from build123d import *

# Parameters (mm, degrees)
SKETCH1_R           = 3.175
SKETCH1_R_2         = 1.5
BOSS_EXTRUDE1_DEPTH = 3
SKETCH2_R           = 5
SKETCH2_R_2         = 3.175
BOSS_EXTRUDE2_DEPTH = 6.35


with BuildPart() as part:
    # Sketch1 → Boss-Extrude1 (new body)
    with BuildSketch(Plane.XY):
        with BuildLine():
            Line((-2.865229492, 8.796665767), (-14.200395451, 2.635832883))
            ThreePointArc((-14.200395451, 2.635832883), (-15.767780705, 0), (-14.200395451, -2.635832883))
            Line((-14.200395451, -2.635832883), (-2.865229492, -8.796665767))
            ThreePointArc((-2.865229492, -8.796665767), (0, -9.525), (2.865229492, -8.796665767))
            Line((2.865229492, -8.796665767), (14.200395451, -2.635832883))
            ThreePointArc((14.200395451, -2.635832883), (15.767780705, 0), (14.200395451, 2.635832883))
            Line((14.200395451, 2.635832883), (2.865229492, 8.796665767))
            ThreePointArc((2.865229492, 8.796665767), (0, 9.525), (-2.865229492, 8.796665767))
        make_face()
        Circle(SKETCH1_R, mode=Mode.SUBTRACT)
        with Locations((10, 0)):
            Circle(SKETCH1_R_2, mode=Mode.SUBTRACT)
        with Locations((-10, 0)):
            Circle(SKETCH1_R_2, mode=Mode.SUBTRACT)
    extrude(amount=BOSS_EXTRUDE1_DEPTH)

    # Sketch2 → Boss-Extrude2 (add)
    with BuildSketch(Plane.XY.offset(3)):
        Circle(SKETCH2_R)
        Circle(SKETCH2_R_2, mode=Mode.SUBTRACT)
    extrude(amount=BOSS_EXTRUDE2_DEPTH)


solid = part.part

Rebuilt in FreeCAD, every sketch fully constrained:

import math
import FreeCAD as App
import Part
import Sketcher

V = App.Vector
Q = App.Units.Quantity

doc = App.newDocument("Part")
body = doc.addObject("PartDesign::Body", "Body")

sketch1 = body.newObject("Sketcher::SketchObject", "Sketch")
sketch1.AttachmentSupport = (doc.getObject("XY_Plane"), [""])
sketch1.MapMode = "FlatFace"
sketch1.addGeometry([
    Part.LineSegment(V(-2.9, 8.8, 0), V(-14.2, 2.6, 0)),
    Part.ArcOfCircle(Part.Circle(V(-12.8, 0, 0), V(0, 0, 1), 3), math.radians(119), math.radians(241)),
    Part.LineSegment(V(-14.2, -2.6, 0), V(-2.9, -8.8, 0)),
    Part.ArcOfCircle(Part.Circle(V(0, -3.5, 0), V(0, 0, 1), 6), math.radians(-119), math.radians(-61)),
    Part.LineSegment(V(2.9, -8.8, 0), V(14.2, -2.6, 0)),
    Part.ArcOfCircle(Part.Circle(V(12.8, 0, 0), V(0, 0, 1), 3), math.radians(-61), math.radians(61)),
    Part.LineSegment(V(14.2, 2.6, 0), V(2.9, 8.8, 0)),
    Part.ArcOfCircle(Part.Circle(V(0, 3.5, 0), V(0, 0, 1), 6), math.radians(61), math.radians(119)),
    Part.Circle(V(-10, 0, 0), V(0, 0, 1), 1.5),
    Part.Circle(V(0, 0, 0), V(0, 0, 1), 3.2),
    Part.Circle(V(10, 0, 0), V(0, 0, 1), 1.5),
], False)
sketch1.addConstraint([
    Sketcher.Constraint("Tangent", 0, 2, 1, 1),
    Sketcher.Constraint("Tangent", 1, 2, 2, 1),
    Sketcher.Constraint("Tangent", 2, 2, 3, 1),
    Sketcher.Constraint("Tangent", 3, 2, 4, 1),
    Sketcher.Constraint("Tangent", 4, 2, 5, 1),
    Sketcher.Constraint("Tangent", 5, 2, 6, 1),
    Sketcher.Constraint("Tangent", 6, 2, 7, 1),
    Sketcher.Constraint("Tangent", 7, 2, 0, 1),
    Sketcher.Constraint("Coincident", 9, 3, -1, 1),
    Sketcher.Constraint("Equal", 1, 5),
    Sketcher.Constraint("Equal", 3, 7),
    Sketcher.Constraint("Equal", 8, 10),
    Sketcher.Constraint("Symmetric", 1, 3, 5, 3, -1, 1),
    Sketcher.Constraint("Symmetric", 3, 3, 7, 3, -1, 1),
    Sketcher.Constraint("Symmetric", 8, 3, 10, 3, -1, 1),
    Sketcher.Constraint("Symmetric", 2, 2, 3, 2, -2),
    Sketcher.Constraint("PointOnObject", 8, 3, -1),
    Sketcher.Constraint("Diameter", 8, Q("3 mm")),
    Sketcher.Constraint("Radius", 1, Q("3 mm")),
    Sketcher.Constraint("Radius", 3, Q("6 mm")),
    Sketcher.Constraint("Diameter", 9, Q("6.35 mm")),
    Sketcher.Constraint("DistanceX", 8, 3, -1, 1, Q("10 mm")),
    Sketcher.Constraint("DistanceY", 3, 3, 7, 3, Q("7.05 mm")),
    Sketcher.Constraint("DistanceX", 1, 3, -1, 1, Q("12.767781 mm")),
])
pad1 = body.newObject("PartDesign::Pad", "Pad")
pad1.Profile = sketch1
pad1.Length = 3

sketch2 = body.newObject("Sketcher::SketchObject", "Sketch001")
sketch2.AttachmentSupport = (doc.getObject("XY_Plane"), [""])
sketch2.MapMode = "FlatFace"
sketch2.AttachmentOffset = App.Placement(V(0, 0, 3), App.Rotation())
sketch2.addGeometry([
    Part.Circle(V(0, 0, 0), V(0, 0, 1), 5),
    Part.Circle(V(0, 0, 0), V(0, 0, 1), 3.2),
], False)
sketch2.addConstraint([
    Sketcher.Constraint("Coincident", 0, 3, -1, 1),
    Sketcher.Constraint("Coincident", 1, 3, -1, 1),
    Sketcher.Constraint("Diameter", 0, Q("10 mm")),
    Sketcher.Constraint("Diameter", 1, Q("6.35 mm")),
])
pad2 = body.newObject("PartDesign::Pad", "Pad001")
pad2.Profile = sketch2
pad2.Length = 6.35

doc.recompute()
